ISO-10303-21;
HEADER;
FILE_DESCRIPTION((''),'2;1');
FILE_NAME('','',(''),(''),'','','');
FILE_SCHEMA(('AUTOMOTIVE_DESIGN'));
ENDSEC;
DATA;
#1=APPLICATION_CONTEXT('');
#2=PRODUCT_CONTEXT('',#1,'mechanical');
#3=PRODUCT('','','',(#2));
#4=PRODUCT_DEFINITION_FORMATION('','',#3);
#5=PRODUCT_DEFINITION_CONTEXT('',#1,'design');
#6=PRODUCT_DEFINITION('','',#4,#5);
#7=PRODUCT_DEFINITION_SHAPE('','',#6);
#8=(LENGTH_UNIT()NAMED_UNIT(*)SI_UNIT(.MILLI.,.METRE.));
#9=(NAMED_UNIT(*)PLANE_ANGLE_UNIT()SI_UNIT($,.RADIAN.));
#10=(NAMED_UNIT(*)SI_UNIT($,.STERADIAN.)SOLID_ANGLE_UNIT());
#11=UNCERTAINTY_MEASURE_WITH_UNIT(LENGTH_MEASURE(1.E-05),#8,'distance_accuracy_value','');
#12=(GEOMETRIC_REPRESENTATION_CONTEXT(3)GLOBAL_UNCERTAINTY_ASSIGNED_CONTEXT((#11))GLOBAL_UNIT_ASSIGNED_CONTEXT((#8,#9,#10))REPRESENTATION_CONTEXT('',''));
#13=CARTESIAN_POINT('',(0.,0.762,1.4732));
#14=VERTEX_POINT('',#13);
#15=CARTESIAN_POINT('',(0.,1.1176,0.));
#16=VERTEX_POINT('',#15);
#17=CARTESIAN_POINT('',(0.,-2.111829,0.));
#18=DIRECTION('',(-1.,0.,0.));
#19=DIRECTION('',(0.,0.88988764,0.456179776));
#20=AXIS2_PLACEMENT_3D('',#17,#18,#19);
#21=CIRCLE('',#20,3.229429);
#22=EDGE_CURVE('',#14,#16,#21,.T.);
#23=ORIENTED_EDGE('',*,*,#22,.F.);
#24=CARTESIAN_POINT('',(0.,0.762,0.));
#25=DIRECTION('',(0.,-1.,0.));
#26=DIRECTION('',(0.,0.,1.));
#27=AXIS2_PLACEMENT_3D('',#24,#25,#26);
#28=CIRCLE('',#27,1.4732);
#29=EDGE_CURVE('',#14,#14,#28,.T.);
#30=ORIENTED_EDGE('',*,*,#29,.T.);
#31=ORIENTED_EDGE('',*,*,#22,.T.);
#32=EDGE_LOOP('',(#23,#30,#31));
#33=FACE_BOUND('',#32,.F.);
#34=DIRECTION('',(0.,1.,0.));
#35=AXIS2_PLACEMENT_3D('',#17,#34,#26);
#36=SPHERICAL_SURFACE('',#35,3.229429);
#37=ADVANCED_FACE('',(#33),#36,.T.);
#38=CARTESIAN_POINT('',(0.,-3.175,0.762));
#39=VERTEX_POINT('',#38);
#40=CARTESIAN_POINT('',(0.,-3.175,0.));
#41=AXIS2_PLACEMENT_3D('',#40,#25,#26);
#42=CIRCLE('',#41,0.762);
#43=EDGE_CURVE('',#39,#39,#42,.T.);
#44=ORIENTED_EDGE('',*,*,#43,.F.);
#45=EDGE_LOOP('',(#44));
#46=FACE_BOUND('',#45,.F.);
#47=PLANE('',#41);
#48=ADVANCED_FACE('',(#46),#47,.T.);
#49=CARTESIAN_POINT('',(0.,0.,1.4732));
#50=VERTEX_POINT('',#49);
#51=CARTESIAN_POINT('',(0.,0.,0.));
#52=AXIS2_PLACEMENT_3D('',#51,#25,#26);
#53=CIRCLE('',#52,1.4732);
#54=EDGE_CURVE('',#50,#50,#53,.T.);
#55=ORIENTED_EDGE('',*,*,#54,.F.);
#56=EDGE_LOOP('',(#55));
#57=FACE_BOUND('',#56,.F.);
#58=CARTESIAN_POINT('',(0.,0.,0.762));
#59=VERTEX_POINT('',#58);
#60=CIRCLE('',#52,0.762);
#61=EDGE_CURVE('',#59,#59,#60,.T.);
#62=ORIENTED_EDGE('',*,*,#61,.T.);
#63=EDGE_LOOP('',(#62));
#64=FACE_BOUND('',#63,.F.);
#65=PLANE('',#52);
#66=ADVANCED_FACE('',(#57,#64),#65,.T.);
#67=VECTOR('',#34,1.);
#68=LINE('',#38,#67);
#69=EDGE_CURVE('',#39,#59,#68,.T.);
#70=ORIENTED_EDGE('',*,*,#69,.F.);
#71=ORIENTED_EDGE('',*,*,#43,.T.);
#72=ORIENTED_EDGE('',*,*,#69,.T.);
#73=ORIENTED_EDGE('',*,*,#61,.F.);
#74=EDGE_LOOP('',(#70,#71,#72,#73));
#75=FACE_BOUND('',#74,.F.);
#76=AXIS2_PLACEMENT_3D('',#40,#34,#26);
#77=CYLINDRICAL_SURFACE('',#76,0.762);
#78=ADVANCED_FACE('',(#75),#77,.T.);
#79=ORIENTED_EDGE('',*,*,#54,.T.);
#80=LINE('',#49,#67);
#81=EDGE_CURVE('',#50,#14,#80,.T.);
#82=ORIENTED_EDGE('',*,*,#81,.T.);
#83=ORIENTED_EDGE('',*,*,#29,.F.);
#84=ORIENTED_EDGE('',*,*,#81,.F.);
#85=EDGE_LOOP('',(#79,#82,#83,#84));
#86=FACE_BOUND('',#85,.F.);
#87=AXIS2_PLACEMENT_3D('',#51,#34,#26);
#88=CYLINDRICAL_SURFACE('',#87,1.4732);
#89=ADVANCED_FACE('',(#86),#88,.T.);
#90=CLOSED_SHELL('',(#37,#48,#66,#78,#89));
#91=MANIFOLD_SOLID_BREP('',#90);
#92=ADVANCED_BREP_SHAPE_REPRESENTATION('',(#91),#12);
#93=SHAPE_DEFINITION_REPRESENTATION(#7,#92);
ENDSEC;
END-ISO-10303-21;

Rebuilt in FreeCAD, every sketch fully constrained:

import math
import FreeCAD as App
import Part
import Sketcher
from FreeCAD import Vector
Q = App.Units.Quantity

doc = App.newDocument("Part")
body = doc.addObject("PartDesign::Body", "Body")

# Sketch on YZ plane
sketch1 = doc.addObject("Sketcher::SketchObject", "Sketch")
body.addObject(sketch1)
sketch1.AttachmentSupport = (doc.YZ_Plane, [""])
sketch1.MapMode = "FlatFace"
sketch1.addGeometry([
    Part.LineSegment(Vector(1.1, 0, 0), Vector(-3.2, 0, 0)),  # 0
    Part.LineSegment(Vector(-3.2, 0, 0), Vector(-3.2, -0.8, 0)),  # 1
    Part.LineSegment(Vector(-3.2, -0.8, 0), Vector(0, -0.8, 0)),  # 2
    Part.LineSegment(Vector(0, -0.8, 0), Vector(0, -1.5, 0)),  # 3
    Part.LineSegment(Vector(0, -1.5, 0), Vector(0.8, -1.5, 0)),  # 4
    Part.ArcOfCircle(Part.Circle(Vector(-2.1, 0, 0), Vector(0, 0, 1), 3.2), math.radians(-27), math.radians(0)),  # 5
], False)
sketch1.addConstraint([
    Sketcher.Constraint("Coincident", 0, 2, 1, 1),
    Sketcher.Constraint("Coincident", 1, 2, 2, 1),
    Sketcher.Constraint("Coincident", 2, 2, 3, 1),
    Sketcher.Constraint("Coincident", 3, 2, 4, 1),
    Sketcher.Constraint("Coincident", 4, 2, 5, 1),
    Sketcher.Constraint("Coincident", 5, 2, 0, 1),
    Sketcher.Constraint("Horizontal", 0),
    Sketcher.Constraint("Vertical", 1),
    Sketcher.Constraint("Horizontal", 2),
    Sketcher.Constraint("Vertical", 3),
    Sketcher.Constraint("Horizontal", 4),
    Sketcher.Constraint("PointOnObject", 5, 3, -1),
    Sketcher.Constraint("PointOnObject", 0, 2, -1),
    Sketcher.Constraint("PointOnObject", 2, 2, -2),
    Sketcher.Constraint("Equal", 4, 1),
    Sketcher.Constraint("DistanceX", 4, 1, 4, 2, Q("0.03 in")),
    Sketcher.Constraint("DistanceX", 0, 2, 0, 1, Q("0.169 in")),
    Sketcher.Constraint("DistanceX", 2, 1, 2, 2, Q("0.125 in")),
    Sketcher.Constraint("DistanceY", 3, 2, 3, 1, Q("0.028 in")),
])
revolution = doc.addObject("PartDesign::Revolution", "Revolution")
body.addObject(revolution)
revolution.Profile = sketch1
revolution.ReferenceAxis = (sketch1, ["H_Axis"])
revolution.Angle = 360

doc.recompute()
